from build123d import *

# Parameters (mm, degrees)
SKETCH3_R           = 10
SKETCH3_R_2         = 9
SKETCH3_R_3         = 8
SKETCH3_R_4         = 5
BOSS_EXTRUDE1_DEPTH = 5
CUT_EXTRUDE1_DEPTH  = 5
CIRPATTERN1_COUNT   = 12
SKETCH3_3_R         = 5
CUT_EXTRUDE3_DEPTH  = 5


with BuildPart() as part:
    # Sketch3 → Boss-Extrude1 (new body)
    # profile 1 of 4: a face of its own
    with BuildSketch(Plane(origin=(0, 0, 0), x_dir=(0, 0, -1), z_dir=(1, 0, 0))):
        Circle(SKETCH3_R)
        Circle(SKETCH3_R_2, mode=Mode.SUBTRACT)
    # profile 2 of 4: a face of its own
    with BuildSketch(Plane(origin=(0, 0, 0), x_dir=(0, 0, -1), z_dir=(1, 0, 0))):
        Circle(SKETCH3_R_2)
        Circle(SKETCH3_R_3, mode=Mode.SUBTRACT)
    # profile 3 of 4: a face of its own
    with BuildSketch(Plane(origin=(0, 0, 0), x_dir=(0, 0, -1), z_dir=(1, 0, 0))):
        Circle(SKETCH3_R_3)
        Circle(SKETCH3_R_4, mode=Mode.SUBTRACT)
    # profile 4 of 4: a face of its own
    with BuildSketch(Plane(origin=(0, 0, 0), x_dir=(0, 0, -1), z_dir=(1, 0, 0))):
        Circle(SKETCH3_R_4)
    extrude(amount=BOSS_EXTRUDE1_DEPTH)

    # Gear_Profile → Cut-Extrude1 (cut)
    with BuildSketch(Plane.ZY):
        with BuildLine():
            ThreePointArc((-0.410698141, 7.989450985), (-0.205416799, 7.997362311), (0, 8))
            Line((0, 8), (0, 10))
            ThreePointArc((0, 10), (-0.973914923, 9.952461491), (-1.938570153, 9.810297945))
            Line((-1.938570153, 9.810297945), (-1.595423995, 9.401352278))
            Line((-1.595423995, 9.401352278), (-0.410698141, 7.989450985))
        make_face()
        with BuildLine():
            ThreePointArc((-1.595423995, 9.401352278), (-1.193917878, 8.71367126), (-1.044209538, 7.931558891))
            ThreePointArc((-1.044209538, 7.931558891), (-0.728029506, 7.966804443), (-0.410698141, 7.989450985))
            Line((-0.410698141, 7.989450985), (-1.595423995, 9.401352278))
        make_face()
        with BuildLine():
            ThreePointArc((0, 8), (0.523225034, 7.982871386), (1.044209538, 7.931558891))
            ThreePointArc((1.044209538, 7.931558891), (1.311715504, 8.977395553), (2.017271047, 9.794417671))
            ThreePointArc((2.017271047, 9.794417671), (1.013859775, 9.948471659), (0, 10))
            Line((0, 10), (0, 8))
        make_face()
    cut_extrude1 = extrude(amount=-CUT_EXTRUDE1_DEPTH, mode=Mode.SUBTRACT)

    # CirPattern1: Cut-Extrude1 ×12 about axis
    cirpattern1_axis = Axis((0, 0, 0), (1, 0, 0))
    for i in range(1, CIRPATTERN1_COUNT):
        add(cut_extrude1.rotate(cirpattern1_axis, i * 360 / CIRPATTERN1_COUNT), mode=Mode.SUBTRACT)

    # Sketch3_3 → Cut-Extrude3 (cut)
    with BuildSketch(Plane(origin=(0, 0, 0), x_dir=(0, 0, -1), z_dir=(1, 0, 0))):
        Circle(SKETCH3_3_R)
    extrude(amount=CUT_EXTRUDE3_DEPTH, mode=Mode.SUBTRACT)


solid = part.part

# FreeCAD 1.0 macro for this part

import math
import FreeCAD as App
import Part
import Sketcher
Q = App.Units.Quantity

doc = App.newDocument("Part")
body = doc.addObject("PartDesign::Body", "Body")

# Sketch on YZ plane
sketch1 = body.newObject("Sketcher::SketchObject", "Sketch")
sketch1.AttachmentSupport = (doc.getObject("YZ_Plane"), [""])
sketch1.MapMode = "FlatFace"
sketch1.addGeometry(Part.Circle(App.Vector(0, 0, 0), App.Vector(0, 0, 1), 10), False)
sketch1.addConstraint([
    Sketcher.Constraint("Coincident", 0, 3, -1, 1),
    Sketcher.Constraint("Diameter", 0, Q("20 mm")),
])
pad1 = body.newObject("PartDesign::Pad", "Pad")
pad1.Profile = sketch1
pad1.Length = 5

# Sketch on YZ plane
sketch2 = body.newObject("Sketcher::SketchObject", "Sketch001")
sketch2.AttachmentSupport = (doc.getObject("YZ_Plane"), [""])
sketch2.MapMode = "FlatFace"
sketch2.addGeometry([
    Part.ArcOfCircle(Part.Circle(App.Vector(-0.000001, 0, 0), App.Vector(0, 0, 1), 8.000001), math.radians(-2.942702), math.radians(0)),  # 0
    Part.ArcOfCircle(Part.Circle(App.Vector(0, 0, 0), App.Vector(0, 0, 1), 8), math.radians(0), math.radians(7.5)),  # 1
    Part.ArcOfCircle(Part.Circle(App.Vector(7.885676, 3.401736, 0), App.Vector(0, 0, 1), 2.357973), math.radians(-88.885045), math.radians(-35.954457)),  # 2
    Part.ArcOfCircle(Part.Circle(App.Vector(0, 0, 0), App.Vector(0, 0, 1), 10), math.radians(0), math.radians(11.637974)),  # 3
    Part.ArcOfCircle(Part.Circle(App.Vector(0, 0, 0), App.Vector(0, 0, 1), 10), math.radians(-11.177961), math.radians(0)),  # 4
    Part.LineSegment(App.Vector(9.810298, -1.93857, 0), App.Vector(9.401352, -1.595424, 0)),  # 5
    Part.ArcOfCircle(Part.Circle(App.Vector(7.885676, -3.401736, 0), App.Vector(0, 0, 1), 2.357973), math.radians(49.999998), math.radians(88.885045)),  # 6
    Part.ArcOfCircle(Part.Circle(App.Vector(-0.000001, 0, 0), App.Vector(0, 0, 1), 8.000001), math.radians(-7.5), math.radians(-2.942703)),  # 7
], False)
sketch2.addConstraint([
    Sketcher.Constraint("Tangent", 0, 2, 1, 1),
    Sketcher.Constraint("Coincident", 1, 2, 2, 1),
    Sketcher.Constraint("Coincident", 2, 2, 3, 2),
    Sketcher.Constraint("Tangent", 3, 1, 4, 2),
    Sketcher.Constraint("Coincident", 4, 1, 5, 1),
    Sketcher.Constraint("Tangent", 5, 2, 6, 1),
    Sketcher.Constraint("Coincident", 6, 2, 7, 1),
    Sketcher.Constraint("Tangent", 7, 2, 0, 1),
    Sketcher.Constraint("Coincident", 0, 3, -1, 1),
    Sketcher.Constraint("Coincident", 3, 3, -1, 1),
    Sketcher.Constraint("Equal", 0, 1),
    Sketcher.Constraint("Equal", 3, 4),
    Sketcher.Constraint("Equal", 2, 6),
    Sketcher.Constraint("Equal", 1, 7),
    Sketcher.Constraint("Symmetric", 2, 3, 6, 3, -1),
    Sketcher.Constraint("PointOnObject", 0, 2, -1),
    Sketcher.Constraint("PointOnObject", 3, 1, -1),
    Sketcher.Constraint("Radius", 0, Q("8.000001 mm")),
    Sketcher.Constraint("Radius", 3, Q("10 mm")),
    Sketcher.Constraint("Angle", 5, Q("140 deg")),
    Sketcher.Constraint("Radius", 2, Q("2.357973 mm")),
    Sketcher.Constraint("DistanceY", 7, 2, -1, 1, Q("0.410698 mm")),
    Sketcher.Constraint("DistanceX", 7, 2, 5, 2, Q("1.411901 mm")),
    Sketcher.Constraint("Distance", 5, Q("0.533841 mm")),
])
pocket1 = body.newObject("PartDesign::Pocket", "Pocket")
pocket1.Profile = sketch2
pocket1.Length = 5
pocket1.Reversed = True
doc.recompute()

polarpattern = body.newObject("PartDesign::PolarPattern", "PolarPattern")
polarpattern.Originals = [pocket1]
polarpattern.Axis = (doc.getObject("X_Axis"), [""])
polarpattern.Angle = 360
polarpattern.Occurrences = 12
body.Tip = polarpattern

# Sketch on YZ plane
sketch3 = body.newObject("Sketcher::SketchObject", "Sketch002")
sketch3.AttachmentSupport = (doc.getObject("YZ_Plane"), [""])
sketch3.MapMode = "FlatFace"
sketch3.addGeometry(Part.Circle(App.Vector(0, 0, 0), App.Vector(0, 0, 1), 5), False)
sketch3.addConstraint([
    Sketcher.Constraint("Coincident", 0, 3, -1, 1),
    Sketcher.Constraint("Diameter", 0, Q("10 mm")),
])
pocket2 = body.newObject("PartDesign::Pocket", "Pocket001")
pocket2.Profile = sketch3
pocket2.Length = 5
pocket2.Reversed = True

doc.recompute()
